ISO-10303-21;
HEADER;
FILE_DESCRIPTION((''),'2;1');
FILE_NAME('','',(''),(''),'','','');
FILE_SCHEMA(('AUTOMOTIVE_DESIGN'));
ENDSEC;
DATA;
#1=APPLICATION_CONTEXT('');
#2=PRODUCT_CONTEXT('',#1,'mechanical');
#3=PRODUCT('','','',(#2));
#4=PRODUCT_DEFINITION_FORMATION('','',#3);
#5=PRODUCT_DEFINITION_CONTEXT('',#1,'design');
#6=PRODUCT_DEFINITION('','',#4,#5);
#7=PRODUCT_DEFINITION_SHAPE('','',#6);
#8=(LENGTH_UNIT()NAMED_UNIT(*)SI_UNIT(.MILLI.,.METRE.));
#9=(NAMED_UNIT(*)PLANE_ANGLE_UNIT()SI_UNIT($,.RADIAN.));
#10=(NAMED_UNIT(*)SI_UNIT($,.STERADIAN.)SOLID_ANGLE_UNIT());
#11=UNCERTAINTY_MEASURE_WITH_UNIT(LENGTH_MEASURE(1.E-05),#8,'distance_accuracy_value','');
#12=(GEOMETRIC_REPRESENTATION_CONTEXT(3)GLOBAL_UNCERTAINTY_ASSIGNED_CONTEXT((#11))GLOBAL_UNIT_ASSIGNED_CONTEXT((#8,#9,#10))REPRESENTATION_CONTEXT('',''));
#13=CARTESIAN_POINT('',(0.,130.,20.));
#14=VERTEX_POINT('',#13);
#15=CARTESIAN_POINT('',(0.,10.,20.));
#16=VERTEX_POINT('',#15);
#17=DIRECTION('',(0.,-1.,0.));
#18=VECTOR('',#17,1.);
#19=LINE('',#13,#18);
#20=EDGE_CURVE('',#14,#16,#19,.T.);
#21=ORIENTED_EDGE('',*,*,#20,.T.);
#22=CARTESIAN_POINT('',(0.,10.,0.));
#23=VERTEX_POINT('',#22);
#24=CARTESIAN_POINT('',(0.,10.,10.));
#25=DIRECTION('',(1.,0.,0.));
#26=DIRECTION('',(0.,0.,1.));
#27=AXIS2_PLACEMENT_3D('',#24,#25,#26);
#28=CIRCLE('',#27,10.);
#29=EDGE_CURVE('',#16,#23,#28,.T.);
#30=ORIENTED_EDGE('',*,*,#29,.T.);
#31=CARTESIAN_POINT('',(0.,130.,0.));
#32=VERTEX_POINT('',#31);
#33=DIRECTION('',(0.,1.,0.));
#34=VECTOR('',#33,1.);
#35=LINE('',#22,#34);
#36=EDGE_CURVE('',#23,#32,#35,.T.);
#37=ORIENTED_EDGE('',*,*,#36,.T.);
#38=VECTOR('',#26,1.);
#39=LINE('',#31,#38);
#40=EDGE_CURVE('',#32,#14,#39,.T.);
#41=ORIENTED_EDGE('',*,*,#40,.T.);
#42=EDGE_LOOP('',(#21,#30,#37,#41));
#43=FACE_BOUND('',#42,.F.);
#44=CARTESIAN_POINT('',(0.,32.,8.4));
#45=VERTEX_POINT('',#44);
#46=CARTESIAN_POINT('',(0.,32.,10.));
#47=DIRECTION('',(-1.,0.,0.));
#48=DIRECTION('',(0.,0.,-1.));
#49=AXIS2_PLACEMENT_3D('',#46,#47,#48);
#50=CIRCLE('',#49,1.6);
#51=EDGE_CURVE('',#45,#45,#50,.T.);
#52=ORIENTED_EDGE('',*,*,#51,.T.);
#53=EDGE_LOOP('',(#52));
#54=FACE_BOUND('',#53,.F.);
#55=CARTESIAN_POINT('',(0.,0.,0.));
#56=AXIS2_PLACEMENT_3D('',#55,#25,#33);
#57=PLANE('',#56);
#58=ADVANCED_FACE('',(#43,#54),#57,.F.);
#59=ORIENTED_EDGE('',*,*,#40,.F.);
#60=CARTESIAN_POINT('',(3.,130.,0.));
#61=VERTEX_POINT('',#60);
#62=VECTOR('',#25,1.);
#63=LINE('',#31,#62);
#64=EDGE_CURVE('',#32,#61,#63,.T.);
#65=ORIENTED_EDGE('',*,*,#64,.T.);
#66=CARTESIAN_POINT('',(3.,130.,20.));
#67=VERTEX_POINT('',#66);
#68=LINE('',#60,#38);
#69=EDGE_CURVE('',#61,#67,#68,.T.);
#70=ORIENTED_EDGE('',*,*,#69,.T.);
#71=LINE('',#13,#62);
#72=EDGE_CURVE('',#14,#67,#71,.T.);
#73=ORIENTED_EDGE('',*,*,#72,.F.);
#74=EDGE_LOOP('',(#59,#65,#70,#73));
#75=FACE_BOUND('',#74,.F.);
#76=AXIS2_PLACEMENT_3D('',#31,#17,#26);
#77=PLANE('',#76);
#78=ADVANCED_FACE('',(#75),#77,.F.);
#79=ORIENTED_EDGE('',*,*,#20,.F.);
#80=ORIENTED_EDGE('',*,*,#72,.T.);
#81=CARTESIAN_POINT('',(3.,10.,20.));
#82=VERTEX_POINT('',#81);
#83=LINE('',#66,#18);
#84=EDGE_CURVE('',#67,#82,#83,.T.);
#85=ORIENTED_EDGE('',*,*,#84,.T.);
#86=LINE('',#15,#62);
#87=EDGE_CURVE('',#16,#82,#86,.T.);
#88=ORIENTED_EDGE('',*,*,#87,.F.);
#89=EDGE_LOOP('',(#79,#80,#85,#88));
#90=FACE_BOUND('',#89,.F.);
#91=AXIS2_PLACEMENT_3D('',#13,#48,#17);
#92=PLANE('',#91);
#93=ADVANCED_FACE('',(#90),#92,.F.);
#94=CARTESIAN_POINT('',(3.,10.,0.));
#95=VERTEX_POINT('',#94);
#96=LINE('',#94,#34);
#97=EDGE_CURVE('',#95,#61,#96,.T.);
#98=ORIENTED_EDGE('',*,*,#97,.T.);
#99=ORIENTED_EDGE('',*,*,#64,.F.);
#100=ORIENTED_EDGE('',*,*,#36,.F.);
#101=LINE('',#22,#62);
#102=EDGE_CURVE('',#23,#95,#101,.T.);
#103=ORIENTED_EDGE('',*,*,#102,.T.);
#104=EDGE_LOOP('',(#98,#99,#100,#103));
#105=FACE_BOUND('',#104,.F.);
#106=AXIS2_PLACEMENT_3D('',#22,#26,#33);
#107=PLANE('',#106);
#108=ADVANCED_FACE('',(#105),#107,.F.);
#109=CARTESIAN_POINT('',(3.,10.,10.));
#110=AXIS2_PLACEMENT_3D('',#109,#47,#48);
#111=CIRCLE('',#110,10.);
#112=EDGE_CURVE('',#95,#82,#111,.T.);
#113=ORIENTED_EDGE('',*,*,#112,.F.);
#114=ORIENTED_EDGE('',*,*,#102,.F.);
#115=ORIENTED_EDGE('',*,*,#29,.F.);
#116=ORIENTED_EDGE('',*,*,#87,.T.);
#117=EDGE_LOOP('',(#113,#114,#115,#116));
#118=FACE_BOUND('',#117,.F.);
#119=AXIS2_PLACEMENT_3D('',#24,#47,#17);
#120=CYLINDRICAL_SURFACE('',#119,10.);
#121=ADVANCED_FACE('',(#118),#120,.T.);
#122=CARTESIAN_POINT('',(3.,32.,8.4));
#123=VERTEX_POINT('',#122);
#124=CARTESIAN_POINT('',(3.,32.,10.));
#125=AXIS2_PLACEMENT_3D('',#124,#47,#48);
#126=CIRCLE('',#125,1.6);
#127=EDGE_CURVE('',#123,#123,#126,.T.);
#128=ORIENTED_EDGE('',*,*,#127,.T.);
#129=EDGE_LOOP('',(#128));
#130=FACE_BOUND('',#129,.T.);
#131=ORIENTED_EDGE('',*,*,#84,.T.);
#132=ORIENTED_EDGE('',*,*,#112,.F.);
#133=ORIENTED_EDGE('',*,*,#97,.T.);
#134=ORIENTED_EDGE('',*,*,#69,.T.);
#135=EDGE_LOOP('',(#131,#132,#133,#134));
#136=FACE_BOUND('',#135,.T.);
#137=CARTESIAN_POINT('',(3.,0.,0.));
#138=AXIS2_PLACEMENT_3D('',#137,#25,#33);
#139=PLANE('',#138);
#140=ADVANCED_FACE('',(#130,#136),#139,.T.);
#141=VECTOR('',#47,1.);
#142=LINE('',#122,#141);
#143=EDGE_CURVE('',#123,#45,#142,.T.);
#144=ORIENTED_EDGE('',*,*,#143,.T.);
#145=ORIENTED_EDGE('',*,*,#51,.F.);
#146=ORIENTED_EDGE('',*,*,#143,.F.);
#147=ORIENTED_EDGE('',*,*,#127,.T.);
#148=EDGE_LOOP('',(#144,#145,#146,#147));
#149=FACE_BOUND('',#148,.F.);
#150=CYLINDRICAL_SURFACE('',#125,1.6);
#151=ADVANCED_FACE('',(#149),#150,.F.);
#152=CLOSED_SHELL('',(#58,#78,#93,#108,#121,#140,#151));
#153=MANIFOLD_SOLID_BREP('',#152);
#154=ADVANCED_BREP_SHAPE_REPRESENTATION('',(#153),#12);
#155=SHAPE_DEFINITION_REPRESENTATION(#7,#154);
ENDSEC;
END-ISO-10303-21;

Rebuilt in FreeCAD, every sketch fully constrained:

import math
import FreeCAD as App
import Part
import Sketcher

V = App.Vector
Q = App.Units.Quantity

doc = App.newDocument("Part")
body = doc.addObject("PartDesign::Body", "Body")

sketch1 = doc.addObject("Sketcher::SketchObject", "Sketch")
body.addObject(sketch1)
sketch1.AttachmentSupport = (doc.YZ_Plane, [""])
sketch1.MapMode = "FlatFace"
sketch1.addGeometry([
    Part.ArcOfCircle(Part.Circle(V(10, 10, 0), V(0, 0, 1), 10), math.radians(90), math.radians(270)),
    Part.LineSegment(V(10, 0, 0), V(130, 0, 0)),
    Part.LineSegment(V(130, 0, 0), V(130, 20, 0)),
    Part.LineSegment(V(130, 20, 0), V(10, 20, 0)),
], False)
sketch1.addConstraint([
    Sketcher.Constraint("Tangent", 0, 2, 1, 1),
    Sketcher.Constraint("Coincident", 1, 2, 2, 1),
    Sketcher.Constraint("Coincident", 2, 2, 3, 1),
    Sketcher.Constraint("Tangent", 3, 2, 0, 1),
    Sketcher.Constraint("Horizontal", 1),
    Sketcher.Constraint("Vertical", 2),
    Sketcher.Constraint("Horizontal", 3),
    Sketcher.Constraint("PointOnObject", 0, 2, -1),
    Sketcher.Constraint("Radius", 0, Q("10 mm")),
    Sketcher.Constraint("DistanceX", 1, 1, 1, 2, Q("120 mm")),
    Sketcher.Constraint("DistanceX", -1, 1, 0, 3, Q("10 mm")),
])
pad1 = doc.addObject("PartDesign::Pad", "Pad")
body.addObject(pad1)
pad1.Profile = sketch1
pad1.Length = 3

sketch2 = doc.addObject("Sketcher::SketchObject", "Sketch001")
body.addObject(sketch2)
sketch2.AttachmentSupport = (doc.YZ_Plane, [""])
sketch2.MapMode = "FlatFace"
sketch2.AttachmentOffset = App.Placement(V(0, 0, 3), App.Rotation())
sketch2.addGeometry(Part.Circle(V(32, 10, 0), V(0, 0, 1), 1.6), False)
sketch2.addConstraint([
    Sketcher.Constraint("Diameter", 0, Q("3.2 mm")),
    Sketcher.Constraint("DistanceX", -1, 1, 0, 3, Q("32 mm")),
    Sketcher.Constraint("DistanceY", -1, 1, 0, 3, Q("10 mm")),
])
doc.recompute()
hole = doc.addObject("PartDesign::Hole", "Hole")
body.addObject(hole)
hole.Profile = sketch2
hole.ThreadType = "None"
hole.Diameter = 3.2
hole.DepthType = "ThroughAll"

doc.recompute()
